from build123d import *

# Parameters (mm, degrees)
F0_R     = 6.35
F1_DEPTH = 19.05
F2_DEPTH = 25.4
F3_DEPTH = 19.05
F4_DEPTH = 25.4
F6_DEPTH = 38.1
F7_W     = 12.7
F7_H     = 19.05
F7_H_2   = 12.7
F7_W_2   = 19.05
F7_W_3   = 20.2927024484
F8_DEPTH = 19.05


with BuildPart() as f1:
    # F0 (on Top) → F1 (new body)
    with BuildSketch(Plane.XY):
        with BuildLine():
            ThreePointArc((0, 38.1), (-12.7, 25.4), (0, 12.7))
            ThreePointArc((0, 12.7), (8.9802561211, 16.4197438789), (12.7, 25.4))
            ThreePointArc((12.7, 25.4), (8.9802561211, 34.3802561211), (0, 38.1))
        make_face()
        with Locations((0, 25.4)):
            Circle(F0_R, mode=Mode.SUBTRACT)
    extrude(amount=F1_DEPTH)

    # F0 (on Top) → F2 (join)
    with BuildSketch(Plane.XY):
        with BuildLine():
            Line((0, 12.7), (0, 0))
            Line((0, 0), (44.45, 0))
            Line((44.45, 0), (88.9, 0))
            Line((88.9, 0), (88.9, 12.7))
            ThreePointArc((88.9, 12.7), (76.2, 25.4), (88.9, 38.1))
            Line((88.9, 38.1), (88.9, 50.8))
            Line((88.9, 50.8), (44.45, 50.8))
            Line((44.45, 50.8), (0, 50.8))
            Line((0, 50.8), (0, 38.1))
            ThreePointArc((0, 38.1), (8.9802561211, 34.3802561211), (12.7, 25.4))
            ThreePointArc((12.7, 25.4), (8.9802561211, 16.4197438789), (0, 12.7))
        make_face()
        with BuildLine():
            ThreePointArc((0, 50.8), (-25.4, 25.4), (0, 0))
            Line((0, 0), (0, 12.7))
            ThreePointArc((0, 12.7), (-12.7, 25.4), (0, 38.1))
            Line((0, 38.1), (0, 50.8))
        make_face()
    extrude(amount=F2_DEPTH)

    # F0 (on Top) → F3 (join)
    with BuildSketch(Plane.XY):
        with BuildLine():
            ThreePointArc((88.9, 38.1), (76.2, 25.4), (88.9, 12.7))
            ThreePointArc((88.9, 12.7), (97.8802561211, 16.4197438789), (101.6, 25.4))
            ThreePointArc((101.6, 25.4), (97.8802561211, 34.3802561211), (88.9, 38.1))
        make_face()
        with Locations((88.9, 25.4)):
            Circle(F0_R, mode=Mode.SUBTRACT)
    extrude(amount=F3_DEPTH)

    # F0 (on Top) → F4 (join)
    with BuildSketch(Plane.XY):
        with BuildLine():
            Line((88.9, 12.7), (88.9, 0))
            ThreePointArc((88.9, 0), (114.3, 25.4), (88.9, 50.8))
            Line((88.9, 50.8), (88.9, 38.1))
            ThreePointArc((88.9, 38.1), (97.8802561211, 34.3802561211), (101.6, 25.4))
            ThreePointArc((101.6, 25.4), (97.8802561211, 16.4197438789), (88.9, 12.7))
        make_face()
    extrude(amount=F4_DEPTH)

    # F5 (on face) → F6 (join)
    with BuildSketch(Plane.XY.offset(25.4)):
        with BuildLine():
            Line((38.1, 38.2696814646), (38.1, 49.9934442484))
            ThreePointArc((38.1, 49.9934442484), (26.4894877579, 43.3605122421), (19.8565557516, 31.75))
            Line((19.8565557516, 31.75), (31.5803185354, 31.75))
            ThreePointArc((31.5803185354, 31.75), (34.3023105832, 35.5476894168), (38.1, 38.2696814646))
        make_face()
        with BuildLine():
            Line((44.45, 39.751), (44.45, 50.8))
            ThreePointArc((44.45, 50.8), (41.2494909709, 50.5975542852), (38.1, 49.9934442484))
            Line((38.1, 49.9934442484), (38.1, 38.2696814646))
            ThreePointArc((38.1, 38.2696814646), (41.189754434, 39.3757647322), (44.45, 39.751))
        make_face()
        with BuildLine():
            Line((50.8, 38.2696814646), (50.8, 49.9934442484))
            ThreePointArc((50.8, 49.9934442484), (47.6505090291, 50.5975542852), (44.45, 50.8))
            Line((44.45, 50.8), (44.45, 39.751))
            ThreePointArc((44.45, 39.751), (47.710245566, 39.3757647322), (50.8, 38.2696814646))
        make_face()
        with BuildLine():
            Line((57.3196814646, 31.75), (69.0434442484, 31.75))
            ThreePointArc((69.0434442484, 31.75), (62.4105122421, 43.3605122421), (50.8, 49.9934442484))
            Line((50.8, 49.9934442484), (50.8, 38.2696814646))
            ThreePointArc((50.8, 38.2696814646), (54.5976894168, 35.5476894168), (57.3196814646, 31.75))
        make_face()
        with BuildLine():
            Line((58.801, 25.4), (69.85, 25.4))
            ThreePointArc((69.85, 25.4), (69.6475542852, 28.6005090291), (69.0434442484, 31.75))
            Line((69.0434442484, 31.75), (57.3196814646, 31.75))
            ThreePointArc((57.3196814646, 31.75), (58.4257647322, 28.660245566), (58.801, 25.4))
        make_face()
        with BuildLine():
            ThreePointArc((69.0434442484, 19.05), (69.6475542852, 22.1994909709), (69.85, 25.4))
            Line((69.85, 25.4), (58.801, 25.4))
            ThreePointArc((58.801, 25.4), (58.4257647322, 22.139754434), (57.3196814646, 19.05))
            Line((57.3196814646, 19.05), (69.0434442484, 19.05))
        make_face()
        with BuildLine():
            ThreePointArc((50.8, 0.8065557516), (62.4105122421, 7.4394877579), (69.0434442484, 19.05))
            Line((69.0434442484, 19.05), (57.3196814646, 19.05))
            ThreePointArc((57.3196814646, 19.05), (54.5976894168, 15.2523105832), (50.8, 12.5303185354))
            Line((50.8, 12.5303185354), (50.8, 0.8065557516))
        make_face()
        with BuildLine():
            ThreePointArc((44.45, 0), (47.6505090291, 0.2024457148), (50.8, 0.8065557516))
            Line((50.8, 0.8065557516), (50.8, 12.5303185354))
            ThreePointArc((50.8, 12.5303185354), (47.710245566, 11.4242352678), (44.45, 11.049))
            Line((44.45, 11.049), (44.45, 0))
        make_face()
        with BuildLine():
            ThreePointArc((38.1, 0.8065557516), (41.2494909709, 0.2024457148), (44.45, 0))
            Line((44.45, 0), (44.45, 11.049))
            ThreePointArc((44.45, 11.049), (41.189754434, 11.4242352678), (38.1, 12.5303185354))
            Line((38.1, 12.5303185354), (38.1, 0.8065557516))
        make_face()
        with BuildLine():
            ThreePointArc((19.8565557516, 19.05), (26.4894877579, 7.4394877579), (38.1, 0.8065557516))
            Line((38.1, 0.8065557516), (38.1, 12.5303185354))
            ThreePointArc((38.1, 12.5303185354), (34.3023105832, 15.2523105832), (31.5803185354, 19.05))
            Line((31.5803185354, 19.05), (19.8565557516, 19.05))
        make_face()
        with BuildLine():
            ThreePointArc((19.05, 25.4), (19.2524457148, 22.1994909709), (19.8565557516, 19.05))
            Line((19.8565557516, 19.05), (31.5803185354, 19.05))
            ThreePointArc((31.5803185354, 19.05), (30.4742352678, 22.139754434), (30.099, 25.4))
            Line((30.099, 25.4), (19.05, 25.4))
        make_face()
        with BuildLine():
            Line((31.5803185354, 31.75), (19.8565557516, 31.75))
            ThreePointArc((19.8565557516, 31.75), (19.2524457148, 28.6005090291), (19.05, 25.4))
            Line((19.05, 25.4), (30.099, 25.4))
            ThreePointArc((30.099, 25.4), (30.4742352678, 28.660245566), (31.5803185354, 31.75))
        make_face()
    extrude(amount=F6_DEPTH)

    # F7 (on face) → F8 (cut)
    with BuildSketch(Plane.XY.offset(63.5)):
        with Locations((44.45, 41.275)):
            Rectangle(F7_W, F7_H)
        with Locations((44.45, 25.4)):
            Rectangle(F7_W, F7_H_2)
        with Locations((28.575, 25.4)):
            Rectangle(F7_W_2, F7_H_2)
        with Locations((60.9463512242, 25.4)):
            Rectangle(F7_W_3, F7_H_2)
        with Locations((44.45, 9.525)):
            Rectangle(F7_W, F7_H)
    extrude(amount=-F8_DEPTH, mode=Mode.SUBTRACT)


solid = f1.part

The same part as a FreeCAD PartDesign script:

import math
import FreeCAD as App
import Part
import Sketcher

V = App.Vector
Q = App.Units.Quantity


def add_polygon(sketch, points):
    """Adds a closed chain of lines whose ends are joined by coincident constraints."""
    first, n = sketch.GeometryCount, len(points)
    for a, b in zip(points, points[1:] + points[:1]):
        sketch.addGeometry(Part.LineSegment(App.Vector(*a, 0), App.Vector(*b, 0)), False)
    for i in range(n):
        sketch.addConstraint(Sketcher.Constraint("Coincident", first + i, 2, first + (i + 1) % n, 1))

doc = App.newDocument("Part")
body = doc.addObject("PartDesign::Body", "Body")

sketch1 = body.newObject("Sketcher::SketchObject", "Sketch")
sketch1.AttachmentSupport = (doc.getObject("XY_Plane"), [""])
sketch1.MapMode = "FlatFace"
sketch1.addGeometry([
    Part.ArcOfCircle(Part.Circle(V(0, 25, 0), V(0, 0, 1), 13), math.radians(90), math.radians(270)),
    Part.ArcOfCircle(Part.Circle(V(0, 25, 0), V(0, 0, 1), 13), math.radians(-90), math.radians(0)),
    Part.ArcOfCircle(Part.Circle(V(0, 25, 0), V(0, 0, 1), 13), math.radians(0), math.radians(90)),
    Part.Circle(V(0, 25, 0), V(0, 0, 1), 6),
], False)
sketch1.addConstraint([
    Sketcher.Constraint("Tangent", 0, 2, 1, 1),
    Sketcher.Constraint("Tangent", 1, 2, 2, 1),
    Sketcher.Constraint("Tangent", 2, 2, 0, 1),
    Sketcher.Constraint("Coincident", 3, 3, 0, 3),
    Sketcher.Constraint("PointOnObject", 0, 3, -2),
    Sketcher.Constraint("PointOnObject", 0, 2, -2),
    Sketcher.Constraint("PointOnObject", 2, 2, -2),
    Sketcher.Constraint("Horizontal", 3, 3, 1, 2),
    Sketcher.Constraint("Diameter", 3, Q("0.5 in")),
    Sketcher.Constraint("Radius", 0, Q("0.5 in")),
    Sketcher.Constraint("DistanceY", -1, 1, 0, 3, Q("1 in")),
])
pad1 = body.newObject("PartDesign::Pad", "Pad")
pad1.Profile = sketch1
pad1.Length = Q("0.75 in")

sketch2 = body.newObject("Sketcher::SketchObject", "Sketch001")
sketch2.AttachmentSupport = (doc.getObject("XY_Plane"), [""])
sketch2.MapMode = "FlatFace"
sketch2.addGeometry([
    Part.LineSegment(V(0, 0, 0), V(89, 0, 0)),
    Part.LineSegment(V(89, 0, 0), V(89, 13, 0)),
    Part.ArcOfCircle(Part.Circle(V(89, 25, 0), V(0, 0, 1), 13), math.radians(90), math.radians(270)),
    Part.LineSegment(V(89, 38, 0), V(89, 51, 0)),
    Part.LineSegment(V(89, 51, 0), V(0, 51, 0)),
    Part.ArcOfCircle(Part.Circle(V(0, 25, 0), V(0, 0, 1), 25), math.radians(90), math.radians(270)),
    Part.ArcOfCircle(Part.Circle(V(0, 25, 0), V(0, 0, 1), 13), math.radians(0), math.radians(90)),
    Part.ArcOfCircle(Part.Circle(V(0, 25, 0), V(0, 0, 1), 13), math.radians(-90), math.radians(0)),
    Part.ArcOfCircle(Part.Circle(V(0, 25, 0), V(0, 0, 1), 13), math.radians(90), math.radians(270)),
], False)
sketch2.addConstraint([
    Sketcher.Constraint("Coincident", 0, 2, 1, 1),
    Sketcher.Constraint("Coincident", 1, 2, 2, 2),
    Sketcher.Constraint("Coincident", 2, 1, 3, 1),
    Sketcher.Constraint("Coincident", 3, 2, 4, 1),
    Sketcher.Constraint("Tangent", 4, 2, 5, 1),
    Sketcher.Constraint("Tangent", 5, 2, 0, 1),
    Sketcher.Constraint("Tangent", 6, 1, 7, 2),
    Sketcher.Constraint("Tangent", 7, 1, 8, 2),
    Sketcher.Constraint("Tangent", 8, 1, 6, 2),
    Sketcher.Constraint("Horizontal", 0),
    Sketcher.Constraint("Vertical", 1),
    Sketcher.Constraint("Vertical", 3),
    Sketcher.Constraint("Horizontal", 4),
    Sketcher.Constraint("Coincident", 5, 2, -1, 1),
    Sketcher.Constraint("Coincident", 6, 3, 5, 3),
    Sketcher.Constraint("Equal", 2, 6),
    Sketcher.Constraint("PointOnObject", 7, 1, -2),
    Sketcher.Constraint("PointOnObject", 8, 1, -2),
    Sketcher.Constraint("Horizontal", 2, 3, 5, 3),
    Sketcher.Constraint("Horizontal", 8, 3, 6, 1),
    Sketcher.Constraint("Vertical", 2, 3, 0, 2),
    Sketcher.Constraint("Vertical", 1, 2, 2, 1),
    Sketcher.Constraint("Radius", 5, Q("1 in")),
    Sketcher.Constraint("Radius", 2, Q("0.5 in")),
    Sketcher.Constraint("DistanceX", 0, 1, 0, 2, Q("3.5 in")),
])
pad2 = body.newObject("PartDesign::Pad", "Pad001")
pad2.Profile = sketch2
pad2.Length = Q("1 in")

sketch3 = body.newObject("Sketcher::SketchObject", "Sketch002")
sketch3.AttachmentSupport = (doc.getObject("XY_Plane"), [""])
sketch3.MapMode = "FlatFace"
sketch3.addGeometry([
    Part.ArcOfCircle(Part.Circle(V(89, 25, 0), V(0, 0, 1), 13), math.radians(90), math.radians(270)),
    Part.ArcOfCircle(Part.Circle(V(89, 25, 0), V(0, 0, 1), 13), math.radians(-90), math.radians(0)),
    Part.ArcOfCircle(Part.Circle(V(89, 25, 0), V(0, 0, 1), 13), math.radians(0), math.radians(90)),
    Part.Circle(V(89, 25, 0), V(0, 0, 1), 6),
], False)
sketch3.addConstraint([
    Sketcher.Constraint("Tangent", 0, 2, 1, 1),
    Sketcher.Constraint("Tangent", 1, 2, 2, 1),
    Sketcher.Constraint("Tangent", 2, 2, 0, 1),
    Sketcher.Constraint("Coincident", 3, 3, 0, 3),
    Sketcher.Constraint("Horizontal", 3, 3, 1, 2),
    Sketcher.Constraint("Vertical", 3, 3, 0, 2),
    Sketcher.Constraint("Vertical", 0, 2, 2, 2),
    Sketcher.Constraint("Diameter", 3, Q("0.5 in")),
    Sketcher.Constraint("Radius", 0, Q("0.5 in")),
    Sketcher.Constraint("DistanceY", -1, 1, 0, 3, Q("1 in")),
    Sketcher.Constraint("DistanceX", -1, 1, 1, 2, Q("4 in")),
])
pad3 = body.newObject("PartDesign::Pad", "Pad002")
pad3.Profile = sketch3
pad3.Length = Q("0.75 in")

sketch4 = body.newObject("Sketcher::SketchObject", "Sketch003")
sketch4.AttachmentSupport = (doc.getObject("XY_Plane"), [""])
sketch4.MapMode = "FlatFace"
sketch4.addGeometry([
    Part.LineSegment(V(89, 13, 0), V(89, 0, 0)),
    Part.ArcOfCircle(Part.Circle(V(89, 25, 0), V(0, 0, 1), 25), math.radians(-90), math.radians(90)),
    Part.LineSegment(V(89, 51, 0), V(89, 38, 0)),
    Part.ArcOfCircle(Part.Circle(V(89, 25, 0), V(0, 0, 1), 13), math.radians(0), math.radians(90)),
    Part.ArcOfCircle(Part.Circle(V(89, 25, 0), V(0, 0, 1), 13), math.radians(-90), math.radians(0)),
], False)
sketch4.addConstraint([
    Sketcher.Constraint("Coincident", 0, 2, 1, 1),
    Sketcher.Constraint("Coincident", 1, 2, 2, 1),
    Sketcher.Constraint("Coincident", 2, 2, 3, 2),
    Sketcher.Constraint("Tangent", 3, 1, 4, 2),
    Sketcher.Constraint("Coincident", 4, 1, 0, 1),
    Sketcher.Constraint("Vertical", 0),
    Sketcher.Constraint("Vertical", 2),
    Sketcher.Constraint("Coincident", 3, 3, 1, 3),
    Sketcher.Constraint("Equal", 3, 4),
    Sketcher.Constraint("PointOnObject", 0, 2, -1),
    Sketcher.Constraint("Horizontal", 4, 3, 3, 1),
    Sketcher.Constraint("Vertical", 4, 3, 0, 2),
    Sketcher.Constraint("Vertical", 0, 2, 1, 2),
    Sketcher.Constraint("Radius", 1, Q("1 in")),
    Sketcher.Constraint("Radius", 3, Q("0.5 in")),
    Sketcher.Constraint("DistanceX", -1, 1, 3, 1, Q("4 in")),
])
pad4 = body.newObject("PartDesign::Pad", "Pad003")
pad4.Profile = sketch4
pad4.Length = Q("1 in")

sketch5 = body.newObject("Sketcher::SketchObject", "Sketch004")
sketch5.AttachmentSupport = (doc.getObject("XY_Plane"), [""])
sketch5.MapMode = "FlatFace"
sketch5.AttachmentOffset = App.Placement(V(0, 0, 1 * 25.4), App.Rotation())
sketch5.addGeometry([
    Part.ArcOfCircle(Part.Circle(V(44, 25, 0), V(0, 0, 1), 25), math.radians(104), math.radians(166)),
    Part.ArcOfCircle(Part.Circle(V(44, 25, 0), V(0, 0, 1), 25), math.radians(165.52), math.radians(180)),
    Part.ArcOfCircle(Part.Circle(V(44, 25, 0), V(0, 0, 1), 25), math.radians(180), math.radians(194.48)),
    Part.ArcOfCircle(Part.Circle(V(44, 25, 0), V(0, 0, 1), 25), math.radians(-166), math.radians(-104)),
    Part.ArcOfCircle(Part.Circle(V(44, 25, 0), V(0, 0, 1), 25), math.radians(-104.48), math.radians(-90)),
    Part.ArcOfCircle(Part.Circle(V(44, 25, 0), V(0, 0, 1), 25), math.radians(-90), math.radians(-75.52)),
    Part.ArcOfCircle(Part.Circle(V(44, 25, 0), V(0, 0, 1), 25), math.radians(-76), math.radians(-14)),
    Part.ArcOfCircle(Part.Circle(V(44, 25, 0), V(0, 0, 1), 25), math.radians(-14.48), math.radians(0)),
    Part.ArcOfCircle(Part.Circle(V(44, 25, 0), V(0, 0, 1), 25), math.radians(0), math.radians(14.48)),
    Part.ArcOfCircle(Part.Circle(V(44, 25, 0), V(0, 0, 1), 25), math.radians(14), math.radians(76)),
    Part.ArcOfCircle(Part.Circle(V(44, 25, 0), V(0, 0, 1), 25), math.radians(75.52), math.radians(90)),
    Part.ArcOfCircle(Part.Circle(V(44, 25, 0), V(0, 0, 1), 25), math.radians(90), math.radians(104.48)),
    Part.ArcOfCircle(Part.Circle(V(44, 25, 0), V(0, 0, 1), 14), math.radians(116), math.radians(154)),
    Part.ArcOfCircle(Part.Circle(V(44, 25, 0), V(0, 0, 1), 14), math.radians(90), math.radians(116)),
    Part.ArcOfCircle(Part.Circle(V(44, 25, 0), V(0, 0, 1), 14), math.radians(64), math.radians(90)),
    Part.ArcOfCircle(Part.Circle(V(44, 25, 0), V(0, 0, 1), 14), math.radians(26), math.radians(64)),
    Part.ArcOfCircle(Part.Circle(V(44, 25, 0), V(0, 0, 1), 14), math.radians(0), math.radians(26)),
    Part.ArcOfCircle(Part.Circle(V(44, 25, 0), V(0, 0, 1), 14), math.radians(-26), math.radians(0)),
    Part.ArcOfCircle(Part.Circle(V(44, 25, 0), V(0, 0, 1), 14), math.radians(-64), math.radians(-26)),
    Part.ArcOfCircle(Part.Circle(V(44, 25, 0), V(0, 0, 1), 14), math.radians(-90), math.radians(-64)),
    Part.ArcOfCircle(Part.Circle(V(44, 25, 0), V(0, 0, 1), 14), math.radians(-116), math.radians(-90)),
    Part.ArcOfCircle(Part.Circle(V(44, 25, 0), V(0, 0, 1), 14), math.radians(-154), math.radians(-116)),
    Part.ArcOfCircle(Part.Circle(V(44, 25, 0), V(0, 0, 1), 14), math.radians(180), math.radians(206)),
    Part.ArcOfCircle(Part.Circle(V(44, 25, 0), V(0, 0, 1), 14), math.radians(154), math.radians(180)),
], False)
sketch5.addConstraint([
    Sketcher.Constraint("Tangent", 0, 2, 1, 1),
    Sketcher.Constraint("Tangent", 1, 2, 2, 1),
    Sketcher.Constraint("Tangent", 2, 2, 3, 1),
    Sketcher.Constraint("Tangent", 3, 2, 4, 1),
    Sketcher.Constraint("Tangent", 4, 2, 5, 1),
    Sketcher.Constraint("Tangent", 5, 2, 6, 1),
    Sketcher.Constraint("Tangent", 6, 2, 7, 1),
    Sketcher.Constraint("Tangent", 7, 2, 8, 1),
    Sketcher.Constraint("Tangent", 8, 2, 9, 1),
    Sketcher.Constraint("Tangent", 9, 2, 10, 1),
    Sketcher.Constraint("Tangent", 10, 2, 11, 1),
    Sketcher.Constraint("Tangent", 11, 2, 0, 1),
    Sketcher.Constraint("Tangent", 12, 1, 13, 2),
    Sketcher.Constraint("Tangent", 13, 1, 14, 2),
    Sketcher.Constraint("Tangent", 14, 1, 15, 2),
    Sketcher.Constraint("Tangent", 15, 1, 16, 2),
    Sketcher.Constraint("Tangent", 16, 1, 17, 2),
    Sketcher.Constraint("Tangent", 17, 1, 18, 2),
    Sketcher.Constraint("Tangent", 18, 1, 19, 2),
    Sketcher.Constraint("Tangent", 19, 1, 20, 2),
    Sketcher.Constraint("Tangent", 20, 1, 21, 2),
    Sketcher.Constraint("Tangent", 21, 1, 22, 2),
    Sketcher.Constraint("Tangent", 22, 1, 23, 2),
    Sketcher.Constraint("Tangent", 23, 1, 12, 2),
    Sketcher.Constraint("Coincident", 2, 3, 0, 3),
    Sketcher.Constraint("Coincident", 4, 3, 0, 3),
    Sketcher.Constraint("Coincident", 6, 3, 0, 3),
    Sketcher.Constraint("Coincident", 8, 3, 0, 3),
    Sketcher.Constraint("Coincident", 12, 3, 0, 3),
    Sketcher.Constraint("Coincident", 14, 3, 0, 3),
    Sketcher.Constraint("Coincident", 16, 3, 0, 3),
    Sketcher.Constraint("Coincident", 18, 3, 0, 3),
    Sketcher.Constraint("Coincident", 20, 3, 0, 3),
    Sketcher.Constraint("Equal", 8, 9),
    Sketcher.Constraint("Equal", 20, 21),
    Sketcher.Constraint("PointOnObject", 4, 2, -1),
    Sketcher.Constraint("Horizontal", 23, 3, 1, 2),
    Sketcher.Constraint("Horizontal", 3, 2, 5, 2),
    Sketcher.Constraint("Horizontal", 2, 2, 6, 2),
    Sketcher.Constraint("Horizontal", 1, 2, 7, 2),
    Sketcher.Constraint("Horizontal", 0, 2, 8, 2),
    Sketcher.Constraint("Horizontal", 9, 2, 11, 2),
    Sketcher.Constraint("Horizontal", 12, 1, 14, 1),
    Sketcher.Constraint("Horizontal", 8, 2, 15, 1),
    Sketcher.Constraint("Horizontal", 7, 2, 16, 1),
    Sketcher.Constraint("Horizontal", 6, 2, 17, 1),
    Sketcher.Constraint("Horizontal", 18, 1, 20, 1),
    Sketcher.Constraint("Horizontal", 17, 1, 21, 1),
    Sketcher.Constraint("Horizontal", 16, 1, 22, 1),
    Sketcher.Constraint("Horizontal", 15, 1, 23, 1),
    Sketcher.Constraint("Vertical", 0, 2, 2, 2),
    Sketcher.Constraint("Vertical", 23, 3, 4, 2),
    Sketcher.Constraint("Vertical", 5, 2, 9, 2),
    Sketcher.Constraint("Vertical", 4, 2, 10, 2),
    Sketcher.Constraint("Vertical", 11, 2, 12, 1),
    Sketcher.Constraint("Vertical", 10, 2, 13, 1),
    Sketcher.Constraint("Vertical", 14, 1, 18, 1),
    Sketcher.Constraint("Vertical", 13, 1, 19, 1),
    Sketcher.Constraint("Radius", 0, Q("1 in")),
    Sketcher.Constraint("DistanceX", -1, 1, 5, 2, Q("2 in")),
    Sketcher.Constraint("Radius", 12, Q("0.565 in")),
    Sketcher.Constraint("DistanceX", -1, 1, 3, 2, Q("1.5 in")),
    Sketcher.Constraint("DistanceY", 2, 2, 0, 2, Q("0.5 in")),
])
pad5 = body.newObject("PartDesign::Pad", "Pad004")
pad5.Profile = sketch5
pad5.Length = Q("1.5 in")

sketch6 = body.newObject("Sketcher::SketchObject", "Sketch005")
sketch6.AttachmentSupport = (doc.getObject("XY_Plane"), [""])
sketch6.MapMode = "FlatFace"
sketch6.AttachmentOffset = App.Placement(V(0, 0, 2.5 * 25.4), App.Rotation())
add_polygon(sketch6, [(38, 51), (38, 32), (19, 32), (19, 19), (38, 19), (38, 0), (51, 0), (51, 19), (71, 19), (71, 32), (51, 32), (51, 51)])
sketch6.addConstraint([
    Sketcher.Constraint("Vertical", 0),
    Sketcher.Constraint("Horizontal", 1),
    Sketcher.Constraint("Vertical", 2),
    Sketcher.Constraint("Horizontal", 3),
    Sketcher.Constraint("Vertical", 4),
    Sketcher.Constraint("Horizontal", 5),
    Sketcher.Constraint("Vertical", 6),
    Sketcher.Constraint("Horizontal", 7),
    Sketcher.Constraint("Vertical", 8),
    Sketcher.Constraint("Horizontal", 9),
    Sketcher.Constraint("Vertical", 10),
    Sketcher.Constraint("Horizontal", 11),
    Sketcher.Constraint("PointOnObject", 4, 2, -1),
    Sketcher.Constraint("Horizontal", 3, 2, 6, 2),
    Sketcher.Constraint("Horizontal", 1, 2, 8, 2),
    Sketcher.Constraint("Vertical", 0, 2, 3, 2),
    Sketcher.Constraint("Vertical", 6, 2, 9, 2),
    Sketcher.Constraint("Equal", 3, 0),
    Sketcher.Constraint("Equal", 11, 2),
    Sketcher.Constraint("Equal", 0, 4),
    Sketcher.Constraint("DistanceX", 5, 1, 5, 2, Q("0.5 in")),
    Sketcher.Constraint("DistanceX", -1, 1, 5, 2, Q("2 in")),
    Sketcher.Constraint("DistanceY", -1, 1, 10, 2, Q("2 in")),
    Sketcher.Constraint("DistanceX", 7, 1, 7, 2, 20.292702),
])
pocket1 = body.newObject("PartDesign::Pocket", "Pocket")
pocket1.Profile = sketch6
pocket1.Length = Q("0.75 in")

doc.recompute()
